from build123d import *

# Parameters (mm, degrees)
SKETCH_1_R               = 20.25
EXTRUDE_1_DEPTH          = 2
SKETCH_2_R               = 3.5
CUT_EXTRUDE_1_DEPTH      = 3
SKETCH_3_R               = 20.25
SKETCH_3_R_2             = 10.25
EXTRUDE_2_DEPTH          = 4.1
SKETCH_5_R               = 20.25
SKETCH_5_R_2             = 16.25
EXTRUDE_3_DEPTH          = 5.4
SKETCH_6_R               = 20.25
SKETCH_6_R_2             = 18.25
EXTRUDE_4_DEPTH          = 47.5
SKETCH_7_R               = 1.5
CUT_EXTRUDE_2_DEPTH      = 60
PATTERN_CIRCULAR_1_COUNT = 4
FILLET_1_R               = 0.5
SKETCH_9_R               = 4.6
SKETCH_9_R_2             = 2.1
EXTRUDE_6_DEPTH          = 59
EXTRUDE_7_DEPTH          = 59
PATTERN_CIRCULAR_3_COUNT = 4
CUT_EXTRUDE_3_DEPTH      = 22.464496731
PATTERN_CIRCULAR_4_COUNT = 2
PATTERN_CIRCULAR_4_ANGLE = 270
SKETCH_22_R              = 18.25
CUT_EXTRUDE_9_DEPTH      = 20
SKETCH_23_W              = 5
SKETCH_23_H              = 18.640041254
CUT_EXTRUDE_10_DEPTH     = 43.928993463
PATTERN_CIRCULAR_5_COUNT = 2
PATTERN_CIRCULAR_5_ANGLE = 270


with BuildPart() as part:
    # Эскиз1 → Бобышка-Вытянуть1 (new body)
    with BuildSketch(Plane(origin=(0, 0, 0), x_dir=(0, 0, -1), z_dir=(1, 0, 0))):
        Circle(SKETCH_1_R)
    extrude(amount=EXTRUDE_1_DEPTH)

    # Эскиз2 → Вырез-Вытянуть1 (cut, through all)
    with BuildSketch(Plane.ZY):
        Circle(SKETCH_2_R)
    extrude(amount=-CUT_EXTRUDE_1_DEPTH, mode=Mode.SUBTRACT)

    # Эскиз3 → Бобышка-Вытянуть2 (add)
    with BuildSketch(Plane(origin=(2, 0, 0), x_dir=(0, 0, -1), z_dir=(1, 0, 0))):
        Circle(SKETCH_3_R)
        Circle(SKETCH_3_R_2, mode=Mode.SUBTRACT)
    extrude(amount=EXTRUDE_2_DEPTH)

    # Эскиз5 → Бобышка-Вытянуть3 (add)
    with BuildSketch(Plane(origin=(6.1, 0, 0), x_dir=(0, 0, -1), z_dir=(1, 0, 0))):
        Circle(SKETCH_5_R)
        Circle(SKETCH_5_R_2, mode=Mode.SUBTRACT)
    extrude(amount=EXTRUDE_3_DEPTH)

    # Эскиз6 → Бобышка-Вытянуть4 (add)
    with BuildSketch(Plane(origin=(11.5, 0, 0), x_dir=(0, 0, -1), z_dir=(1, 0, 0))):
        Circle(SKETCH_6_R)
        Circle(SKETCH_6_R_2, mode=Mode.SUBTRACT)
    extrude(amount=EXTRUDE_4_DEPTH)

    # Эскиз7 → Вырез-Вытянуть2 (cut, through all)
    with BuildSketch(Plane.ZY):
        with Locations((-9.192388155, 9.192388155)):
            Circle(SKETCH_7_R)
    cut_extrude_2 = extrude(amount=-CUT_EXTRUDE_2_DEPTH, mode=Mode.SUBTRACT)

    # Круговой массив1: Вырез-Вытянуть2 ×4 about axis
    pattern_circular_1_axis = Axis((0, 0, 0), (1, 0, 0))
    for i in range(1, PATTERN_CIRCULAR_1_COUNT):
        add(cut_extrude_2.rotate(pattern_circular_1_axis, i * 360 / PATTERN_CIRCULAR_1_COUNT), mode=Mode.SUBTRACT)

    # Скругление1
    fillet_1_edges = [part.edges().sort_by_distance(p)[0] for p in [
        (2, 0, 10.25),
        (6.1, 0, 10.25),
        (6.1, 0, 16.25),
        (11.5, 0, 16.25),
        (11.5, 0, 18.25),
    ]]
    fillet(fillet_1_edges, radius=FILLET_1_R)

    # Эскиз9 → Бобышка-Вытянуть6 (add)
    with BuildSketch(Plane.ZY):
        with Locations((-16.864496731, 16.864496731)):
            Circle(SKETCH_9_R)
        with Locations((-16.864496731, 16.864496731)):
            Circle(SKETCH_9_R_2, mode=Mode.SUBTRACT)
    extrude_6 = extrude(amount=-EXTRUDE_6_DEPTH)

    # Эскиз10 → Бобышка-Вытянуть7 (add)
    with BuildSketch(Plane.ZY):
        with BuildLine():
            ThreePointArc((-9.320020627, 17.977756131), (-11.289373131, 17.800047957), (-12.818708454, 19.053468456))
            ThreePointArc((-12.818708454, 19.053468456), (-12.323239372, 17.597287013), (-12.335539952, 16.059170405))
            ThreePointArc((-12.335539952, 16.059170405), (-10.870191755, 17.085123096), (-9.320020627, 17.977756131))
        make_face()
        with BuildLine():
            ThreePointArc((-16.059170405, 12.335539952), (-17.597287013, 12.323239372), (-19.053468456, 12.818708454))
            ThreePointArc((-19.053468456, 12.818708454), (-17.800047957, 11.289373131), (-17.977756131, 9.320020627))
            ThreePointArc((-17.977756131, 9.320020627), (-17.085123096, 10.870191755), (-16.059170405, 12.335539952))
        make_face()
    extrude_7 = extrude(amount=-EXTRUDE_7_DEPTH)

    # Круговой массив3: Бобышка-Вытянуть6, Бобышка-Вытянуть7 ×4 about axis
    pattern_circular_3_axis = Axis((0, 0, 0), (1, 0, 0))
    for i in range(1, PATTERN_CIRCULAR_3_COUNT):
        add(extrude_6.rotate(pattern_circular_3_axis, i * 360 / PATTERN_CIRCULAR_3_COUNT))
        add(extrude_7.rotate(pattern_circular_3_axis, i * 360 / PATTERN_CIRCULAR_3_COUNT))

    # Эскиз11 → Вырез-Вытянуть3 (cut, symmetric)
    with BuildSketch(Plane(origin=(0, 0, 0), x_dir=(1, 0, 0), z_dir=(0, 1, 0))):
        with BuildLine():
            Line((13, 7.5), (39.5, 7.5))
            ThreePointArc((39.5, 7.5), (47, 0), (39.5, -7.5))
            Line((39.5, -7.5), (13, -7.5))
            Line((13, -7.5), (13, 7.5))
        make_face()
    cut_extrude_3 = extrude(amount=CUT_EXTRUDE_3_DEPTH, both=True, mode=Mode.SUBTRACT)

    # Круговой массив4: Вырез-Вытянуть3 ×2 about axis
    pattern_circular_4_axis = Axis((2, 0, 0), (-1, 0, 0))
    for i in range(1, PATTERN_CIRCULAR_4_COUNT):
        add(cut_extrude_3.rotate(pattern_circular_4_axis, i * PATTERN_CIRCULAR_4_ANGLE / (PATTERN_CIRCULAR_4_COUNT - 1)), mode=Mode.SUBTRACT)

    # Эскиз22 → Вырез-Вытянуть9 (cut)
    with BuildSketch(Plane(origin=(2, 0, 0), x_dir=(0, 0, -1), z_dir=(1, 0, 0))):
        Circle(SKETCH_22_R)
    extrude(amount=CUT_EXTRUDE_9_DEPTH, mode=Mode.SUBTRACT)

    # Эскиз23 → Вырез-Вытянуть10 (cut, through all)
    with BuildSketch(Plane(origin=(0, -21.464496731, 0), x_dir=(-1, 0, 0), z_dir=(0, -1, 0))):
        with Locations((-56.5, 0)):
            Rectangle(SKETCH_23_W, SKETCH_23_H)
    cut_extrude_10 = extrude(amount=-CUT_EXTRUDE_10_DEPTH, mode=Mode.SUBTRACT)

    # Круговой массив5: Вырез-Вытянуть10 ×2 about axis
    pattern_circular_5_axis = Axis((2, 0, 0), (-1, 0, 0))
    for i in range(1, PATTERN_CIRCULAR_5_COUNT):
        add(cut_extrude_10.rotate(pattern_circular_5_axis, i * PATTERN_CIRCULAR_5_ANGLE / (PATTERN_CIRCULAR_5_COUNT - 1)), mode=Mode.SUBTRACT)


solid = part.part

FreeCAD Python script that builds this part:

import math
import FreeCAD as App
import Part
import Sketcher
from FreeCAD import Vector
Q = App.Units.Quantity


def edges_at(feature, points):
    """Names of the edges that pass closest to the given points."""
    edges = feature.Shape.Edges
    near = lambda p: min(range(len(edges)), key=lambda i: edges[i].distToShape(Part.Vertex(*p))[0])
    return sorted({f"Edge{near(p) + 1}" for p in points})

doc = App.newDocument("Part")
body = doc.addObject("PartDesign::Body", "Body")

sketch1 = body.newObject("Sketcher::SketchObject", "Sketch")
sketch1.AttachmentSupport = (doc.getObject("YZ_Plane"), [""])
sketch1.MapMode = "FlatFace"
sketch1.addGeometry(Part.Circle(Vector(0, 0, 0), Vector(0, 0, 1), 20), False)
sketch1.addConstraint(Sketcher.Constraint("Coincident", 0, 3, -1, 1))
sketch1.addConstraint(Sketcher.Constraint("Diameter", 0, Q("40.5 mm")))
pad1 = body.newObject("PartDesign::Pad", "Pad")
pad1.Profile = sketch1
pad1.Length = 2

sketch2 = body.newObject("Sketcher::SketchObject", "Sketch001")
sketch2.AttachmentSupport = (doc.getObject("YZ_Plane"), [""])
sketch2.MapMode = "FlatFace"
sketch2.addGeometry(Part.Circle(Vector(0, 0, 0), Vector(0, 0, 1), 3.5), False)
sketch2.addConstraint(Sketcher.Constraint("Coincident", 0, 3, -1, 1))
sketch2.addConstraint(Sketcher.Constraint("Diameter", 0, Q("7 mm")))
pocket1 = body.newObject("PartDesign::Pocket", "Pocket")
pocket1.Profile = sketch2
pocket1.Type = "ThroughAll"
pocket1.Reversed = True

sketch3 = body.newObject("Sketcher::SketchObject", "Sketch002")
sketch3.AttachmentSupport = (doc.getObject("YZ_Plane"), [""])
sketch3.MapMode = "FlatFace"
sketch3.AttachmentOffset = App.Placement(Vector(0, 0, 2), App.Rotation())
sketch3.addGeometry(Part.Circle(Vector(0, 0, 0), Vector(0, 0, 1), 20), False)
sketch3.addGeometry(Part.Circle(Vector(0, 0, 0), Vector(0, 0, 1), 10), False)
sketch3.addConstraint(Sketcher.Constraint("Coincident", 0, 3, -1, 1))
sketch3.addConstraint(Sketcher.Constraint("Coincident", 1, 3, -1, 1))
sketch3.addConstraint(Sketcher.Constraint("Diameter", 0, Q("40.5 mm")))
sketch3.addConstraint(Sketcher.Constraint("Diameter", 1, Q("20.5 mm")))
pad2 = body.newObject("PartDesign::Pad", "Pad001")
pad2.Profile = sketch3
pad2.Length = 4.1

sketch4 = body.newObject("Sketcher::SketchObject", "Sketch003")
sketch4.AttachmentSupport = (doc.getObject("YZ_Plane"), [""])
sketch4.MapMode = "FlatFace"
sketch4.AttachmentOffset = App.Placement(Vector(0, 0, 6.1), App.Rotation())
sketch4.addGeometry(Part.Circle(Vector(0, 0, 0), Vector(0, 0, 1), 20), False)
sketch4.addGeometry(Part.Circle(Vector(0, 0, 0), Vector(0, 0, 1), 16), False)
sketch4.addConstraint(Sketcher.Constraint("Coincident", 0, 3, -1, 1))
sketch4.addConstraint(Sketcher.Constraint("Coincident", 1, 3, -1, 1))
sketch4.addConstraint(Sketcher.Constraint("Diameter", 0, Q("40.5 mm")))
sketch4.addConstraint(Sketcher.Constraint("Diameter", 1, Q("32.5 mm")))
pad3 = body.newObject("PartDesign::Pad", "Pad002")
pad3.Profile = sketch4
pad3.Length = 5.4

sketch5 = body.newObject("Sketcher::SketchObject", "Sketch004")
sketch5.AttachmentSupport = (doc.getObject("YZ_Plane"), [""])
sketch5.MapMode = "FlatFace"
sketch5.AttachmentOffset = App.Placement(Vector(0, 0, 11.5), App.Rotation())
sketch5.addGeometry(Part.Circle(Vector(0, 0, 0), Vector(0, 0, 1), 20), False)
sketch5.addGeometry(Part.Circle(Vector(0, 0, 0), Vector(0, 0, 1), 18), False)
sketch5.addConstraint(Sketcher.Constraint("Coincident", 0, 3, -1, 1))
sketch5.addConstraint(Sketcher.Constraint("Coincident", 1, 3, -1, 1))
sketch5.addConstraint(Sketcher.Constraint("Diameter", 0, Q("40.5 mm")))
sketch5.addConstraint(Sketcher.Constraint("Diameter", 1, Q("36.5 mm")))
pad4 = body.newObject("PartDesign::Pad", "Pad003")
pad4.Profile = sketch5
pad4.Length = 47.5

sketch6 = body.newObject("Sketcher::SketchObject", "Sketch005")
sketch6.AttachmentSupport = (doc.getObject("YZ_Plane"), [""])
sketch6.MapMode = "FlatFace"
sketch6.addGeometry(Part.Circle(Vector(9.2, -9.2, 0), Vector(0, 0, 1), 1.5), False)
sketch6.addConstraint(Sketcher.Constraint("Diameter", 0, Q("3 mm")))
sketch6.addConstraint(Sketcher.Constraint("DistanceX", -1, 1, 0, 3, Q("9.192388 mm")))
sketch6.addConstraint(Sketcher.Constraint("DistanceY", 0, 3, -1, 1, Q("9.192388 mm")))
pocket2 = body.newObject("PartDesign::Pocket", "Pocket001")
pocket2.Profile = sketch6
pocket2.Type = "ThroughAll"
pocket2.Reversed = True
doc.recompute()

polarpattern = body.newObject("PartDesign::PolarPattern", "PolarPattern")
polarpattern.Originals = [pocket2]
polarpattern.Axis = (doc.getObject("X_Axis"), [""])
polarpattern.Angle = 360
polarpattern.Occurrences = 4
body.Tip = polarpattern
doc.recompute()

fillet = body.newObject("PartDesign::Fillet", "Fillet")
fillet.Base = (polarpattern, edges_at(polarpattern, [
    (2, 0, 10.25),
    (6.1, 0, 10.25),
    (6.1, 0, 16.25),
    (11.5, 0, 16.25),
    (11.5, 0, 18.25),
]))
fillet.Radius = 0.5

sketch7 = body.newObject("Sketcher::SketchObject", "Sketch006")
sketch7.AttachmentSupport = (doc.getObject("YZ_Plane"), [""])
sketch7.MapMode = "FlatFace"
sketch7.addGeometry(Part.Circle(Vector(16.9, -16.9, 0), Vector(0, 0, 1), 4.6), False)
sketch7.addGeometry(Part.Circle(Vector(16.9, -16.9, 0), Vector(0, 0, 1), 2.1), False)
sketch7.addConstraint(Sketcher.Constraint("Coincident", 1, 3, 0, 3))
sketch7.addConstraint(Sketcher.Constraint("Diameter", 0, Q("9.2 mm")))
sketch7.addConstraint(Sketcher.Constraint("Diameter", 1, Q("4.2 mm")))
sketch7.addConstraint(Sketcher.Constraint("DistanceX", -1, 1, 0, 3, Q("16.864497 mm")))
sketch7.addConstraint(Sketcher.Constraint("DistanceY", 0, 3, -1, 1, Q("16.864497 mm")))
pad5 = body.newObject("PartDesign::Pad", "Pad004")
pad5.Profile = sketch7
pad5.Length = 59

sketch8 = body.newObject("Sketcher::SketchObject", "Sketch007")
sketch8.AttachmentSupport = (doc.getObject("YZ_Plane"), [""])
sketch8.MapMode = "FlatFace"
sketch8.addGeometry(Part.ArcOfCircle(Part.Circle(Vector(20.3, -10.5, 0), Vector(0, 0, 1), 2.6), math.radians(153), math.radians(242)), False)
sketch8.addGeometry(Part.ArcOfCircle(Part.Circle(Vector(16.9, -16.9, 0), Vector(0, 0, 1), 4.6), math.radians(62), math.radians(100)), False)
sketch8.addGeometry(Part.ArcOfCircle(Part.Circle(Vector(0, 0, 0), Vector(0, 0, 1), 20.3), math.radians(-37.53), math.radians(-27.4)), False)
sketch8.addGeometry(Part.ArcOfCircle(Part.Circle(Vector(16.9, -16.9, 0), Vector(0, 0, 1), 4.6), math.radians(170), math.radians(208)), False)
sketch8.addGeometry(Part.ArcOfCircle(Part.Circle(Vector(10.5, -20.3, 0), Vector(0, 0, 1), 2.6), math.radians(28), math.radians(117)), False)
sketch8.addGeometry(Part.ArcOfCircle(Part.Circle(Vector(0, 0, 0), Vector(0, 0, 1), 20.3), math.radians(-62.6), math.radians(-52.47)), False)
sketch8.addConstraint(Sketcher.Constraint("Tangent", 0, 2, 1, 1))
sketch8.addConstraint(Sketcher.Constraint("Coincident", 1, 2, 2, 1))
sketch8.addConstraint(Sketcher.Constraint("Tangent", 2, 2, 0, 1))
sketch8.addConstraint(Sketcher.Constraint("Tangent", 3, 2, 4, 1))
sketch8.addConstraint(Sketcher.Constraint("Tangent", 4, 2, 5, 1))
sketch8.addConstraint(Sketcher.Constraint("Coincident", 5, 2, 3, 1))
sketch8.addConstraint(Sketcher.Constraint("Coincident", 2, 3, -1, 1))
sketch8.addConstraint(Sketcher.Constraint("Coincident", 5, 3, -1, 1))
sketch8.addConstraint(Sketcher.Constraint("Coincident", 3, 3, 1, 3))
sketch8.addConstraint(Sketcher.Constraint("Equal", 1, 3))
sketch8.addConstraint(Sketcher.Constraint("Equal", 0, 4))
sketch8.addConstraint(Sketcher.Constraint("Equal", 2, 5))
sketch8.addConstraint(Sketcher.Constraint("Radius", 1, Q("4.6 mm")))
sketch8.addConstraint(Sketcher.Constraint("Radius", 2, Q("20.25 mm")))
sketch8.addConstraint(Sketcher.Constraint("Radius", 0, Q("2.611415 mm")))
sketch8.addConstraint(Sketcher.Constraint("DistanceX", 1, 2, 0, 2, Q("2.994298 mm")))
sketch8.addConstraint(Sketcher.Constraint("DistanceY", 0, 3, 2, 2, Q("1.201898 mm")))
pad6 = body.newObject("PartDesign::Pad", "Pad005")
pad6.Profile = sketch8
pad6.Length = 59
doc.recompute()

polarpattern2 = body.newObject("PartDesign::PolarPattern", "PolarPattern001")
polarpattern2.Originals = [pad5, pad6]
polarpattern2.Axis = (doc.getObject("X_Axis"), [""])
polarpattern2.Angle = 360
polarpattern2.Occurrences = 4
body.Tip = polarpattern2

sketch9 = body.newObject("Sketcher::SketchObject", "Sketch008")
sketch9.AttachmentSupport = (doc.getObject("XZ_Plane"), [""])
sketch9.MapMode = "FlatFace"
sketch9.addGeometry(Part.LineSegment(Vector(40, -8, 0), Vector(13, -8, 0)), False)
sketch9.addGeometry(Part.LineSegment(Vector(13, -8, 0), Vector(13, 8, 0)), False)
sketch9.addGeometry(Part.LineSegment(Vector(13, 8, 0), Vector(40, 8, 0)), False)
sketch9.addGeometry(Part.ArcOfCircle(Part.Circle(Vector(40, 0, 0), Vector(0, 0, 1), 8), math.radians(-90), math.radians(90)), False)
sketch9.addConstraint(Sketcher.Constraint("Coincident", 0, 2, 1, 1))
sketch9.addConstraint(Sketcher.Constraint("Coincident", 1, 2, 2, 1))
sketch9.addConstraint(Sketcher.Constraint("Tangent", 2, 2, 3, 2))
sketch9.addConstraint(Sketcher.Constraint("Tangent", 3, 1, 0, 1))
sketch9.addConstraint(Sketcher.Constraint("Horizontal", 0))
sketch9.addConstraint(Sketcher.Constraint("Vertical", 1))
sketch9.addConstraint(Sketcher.Constraint("Horizontal", 2))
sketch9.addConstraint(Sketcher.Constraint("PointOnObject", 3, 3, -1))
sketch9.addConstraint(Sketcher.Constraint("Radius", 3, Q("7.5 mm")))
sketch9.addConstraint(Sketcher.Constraint("DistanceX", 0, 2, 0, 1, Q("26.5 mm")))
sketch9.addConstraint(Sketcher.Constraint("DistanceX", -1, 1, 0, 2, Q("13 mm")))
pocket3 = body.newObject("PartDesign::Pocket", "Pocket002")
pocket3.Profile = sketch9
pocket3.Length = 44.928993
pocket3.Midplane = True
doc.recompute()

polarpattern3 = body.newObject("PartDesign::PolarPattern", "PolarPattern002")
polarpattern3.Originals = [pocket3]
polarpattern3.Axis = (doc.getObject("X_Axis"), [""])
polarpattern3.Angle = 270
polarpattern3.Occurrences = 2
polarpattern3.Reversed = True
body.Tip = polarpattern3

sketch10 = body.newObject("Sketcher::SketchObject", "Sketch009")
sketch10.AttachmentSupport = (doc.getObject("YZ_Plane"), [""])
sketch10.MapMode = "FlatFace"
sketch10.AttachmentOffset = App.Placement(Vector(0, 0, 2), App.Rotation())
sketch10.addGeometry(Part.Circle(Vector(0, 0, 0), Vector(0, 0, 1), 18), False)
sketch10.addConstraint(Sketcher.Constraint("Coincident", 0, 3, -1, 1))
sketch10.addConstraint(Sketcher.Constraint("Diameter", 0, Q("36.5 mm")))
pocket4 = body.newObject("PartDesign::Pocket", "Pocket003")
pocket4.Profile = sketch10
pocket4.Length = 20
pocket4.Reversed = True

sketch11 = body.newObject("Sketcher::SketchObject", "Sketch010")
sketch11.AttachmentSupport = (doc.getObject("XZ_Plane"), [""])
sketch11.MapMode = "FlatFace"
sketch11.AttachmentOffset = App.Placement(Vector(0, 0, 21.464497), App.Rotation())
sketch11.addGeometry(Part.LineSegment(Vector(59, -9, 0), Vector(59, 9, 0)), False)
sketch11.addGeometry(Part.LineSegment(Vector(59, 9, 0), Vector(54, 9, 0)), False)
sketch11.addGeometry(Part.LineSegment(Vector(54, 9, 0), Vector(54, -9, 0)), False)
sketch11.addGeometry(Part.LineSegment(Vector(54, -9, 0), Vector(59, -9, 0)), False)
sketch11.addConstraint(Sketcher.Constraint("Coincident", 0, 2, 1, 1))
sketch11.addConstraint(Sketcher.Constraint("Coincident", 1, 2, 2, 1))
sketch11.addConstraint(Sketcher.Constraint("Coincident", 2, 2, 3, 1))
sketch11.addConstraint(Sketcher.Constraint("Coincident", 3, 2, 0, 1))
sketch11.addConstraint(Sketcher.Constraint("Vertical", 0))
sketch11.addConstraint(Sketcher.Constraint("Horizontal", 1))
sketch11.addConstraint(Sketcher.Constraint("Vertical", 2))
sketch11.addConstraint(Sketcher.Constraint("Horizontal", 3))
sketch11.addConstraint(Sketcher.Constraint("DistanceX", 1, 2, 1, 1, Q("5 mm")))
sketch11.addConstraint(Sketcher.Constraint("DistanceX", -1, 1, 0, 2, Q("59 mm")))
sketch11.addConstraint(Sketcher.Constraint("DistanceY", 0, 1, 0, 2, Q("18.640041 mm")))
sketch11.addConstraint(Sketcher.Constraint("DistanceY", -1, 1, 0, 2, Q("9.320021 mm")))
pocket5 = body.newObject("PartDesign::Pocket", "Pocket004")
pocket5.Profile = sketch11
pocket5.Type = "ThroughAll"
doc.recompute()

polarpattern4 = body.newObject("PartDesign::PolarPattern", "PolarPattern003")
polarpattern4.Originals = [pocket5]
polarpattern4.Axis = (doc.getObject("X_Axis"), [""])
polarpattern4.Angle = 270
polarpattern4.Occurrences = 2
polarpattern4.Reversed = True
body.Tip = polarpattern4

doc.recompute()
